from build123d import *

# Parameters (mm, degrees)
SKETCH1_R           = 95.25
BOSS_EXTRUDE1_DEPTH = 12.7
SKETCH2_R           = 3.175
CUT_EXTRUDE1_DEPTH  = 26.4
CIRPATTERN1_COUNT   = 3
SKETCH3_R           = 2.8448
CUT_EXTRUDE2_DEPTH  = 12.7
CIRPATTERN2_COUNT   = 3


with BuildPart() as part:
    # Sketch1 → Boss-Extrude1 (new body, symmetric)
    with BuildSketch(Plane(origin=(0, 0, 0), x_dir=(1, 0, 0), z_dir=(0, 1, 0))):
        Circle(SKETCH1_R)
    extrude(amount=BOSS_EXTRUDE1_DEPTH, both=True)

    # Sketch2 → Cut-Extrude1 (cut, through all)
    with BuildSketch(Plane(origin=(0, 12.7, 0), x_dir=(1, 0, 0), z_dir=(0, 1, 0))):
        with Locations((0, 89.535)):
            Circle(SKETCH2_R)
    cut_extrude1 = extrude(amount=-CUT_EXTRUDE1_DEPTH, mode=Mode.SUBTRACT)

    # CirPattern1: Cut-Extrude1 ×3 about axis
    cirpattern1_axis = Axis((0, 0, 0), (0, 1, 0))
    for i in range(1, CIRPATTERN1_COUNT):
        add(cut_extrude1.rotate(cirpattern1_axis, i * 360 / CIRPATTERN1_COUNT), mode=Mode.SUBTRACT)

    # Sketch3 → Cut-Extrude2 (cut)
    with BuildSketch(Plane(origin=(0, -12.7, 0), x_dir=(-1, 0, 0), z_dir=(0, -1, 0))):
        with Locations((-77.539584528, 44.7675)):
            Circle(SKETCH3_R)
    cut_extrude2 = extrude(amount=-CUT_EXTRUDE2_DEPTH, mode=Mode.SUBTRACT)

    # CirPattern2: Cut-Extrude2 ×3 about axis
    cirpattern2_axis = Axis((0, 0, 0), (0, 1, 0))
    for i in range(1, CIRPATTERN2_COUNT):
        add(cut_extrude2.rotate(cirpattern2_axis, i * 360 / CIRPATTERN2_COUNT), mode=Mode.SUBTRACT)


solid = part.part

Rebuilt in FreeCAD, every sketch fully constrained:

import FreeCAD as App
import Part
import Sketcher

V = App.Vector
Q = App.Units.Quantity

doc = App.newDocument("Part")
body = doc.addObject("PartDesign::Body", "Body")

# Sketch on XZ plane
sketch1 = body.newObject("Sketcher::SketchObject", "Sketch")
sketch1.AttachmentSupport = (doc.getObject("XZ_Plane"), [""])
sketch1.MapMode = "FlatFace"
sketch1.addGeometry(Part.Circle(V(0, 0, 0), V(0, 0, 1), 95), False)
sketch1.addConstraint([
    Sketcher.Constraint("Coincident", 0, 3, -1, 1),
    Sketcher.Constraint("Diameter", 0, Q("7.5 in")),
])
pad1 = body.newObject("PartDesign::Pad", "Pad")
pad1.Profile = sketch1
pad1.Length = Q("1 in")
pad1.Midplane = True

# Sketch on XZ plane
sketch2 = body.newObject("Sketcher::SketchObject", "Sketch001")
sketch2.AttachmentSupport = (doc.getObject("XZ_Plane"), [""])
sketch2.MapMode = "FlatFace"
sketch2.AttachmentOffset = App.Placement(V(0, 0, -0.5 * 25.4), App.Rotation())
sketch2.addGeometry(Part.Circle(V(0, -89.5, 0), V(0, 0, 1), 3.2), False)
sketch2.addConstraint([
    Sketcher.Constraint("PointOnObject", 0, 3, -2),
    Sketcher.Constraint("Diameter", 0, Q("0.25 in")),
    Sketcher.Constraint("DistanceY", 0, 3, -1, 1, Q("3.525 in")),
])
pocket1 = body.newObject("PartDesign::Pocket", "Pocket")
pocket1.Profile = sketch2
pocket1.Type = "ThroughAll"
pocket1.Reversed = True
doc.recompute()

polarpattern = body.newObject("PartDesign::PolarPattern", "PolarPattern")
polarpattern.Originals = [pocket1]
polarpattern.Axis = (doc.getObject("Y_Axis"), [""])
polarpattern.Angle = 360
polarpattern.Occurrences = 3
body.Tip = polarpattern

# Sketch on XZ plane
sketch3 = body.newObject("Sketcher::SketchObject", "Sketch002")
sketch3.AttachmentSupport = (doc.getObject("XZ_Plane"), [""])
sketch3.MapMode = "FlatFace"
sketch3.AttachmentOffset = App.Placement(V(0, 0, 0.5 * 25.4), App.Rotation())
sketch3.addGeometry(Part.Circle(V(77.5, -44.8, 0), V(0, 0, 1), 2.8), False)
sketch3.addConstraint([
    Sketcher.Constraint("Diameter", 0, Q("0.224 in")),
    Sketcher.Constraint("DistanceY", 0, 3, -1, 1, Q("1.7625 in")),
    Sketcher.Constraint("DistanceX", -1, 1, 0, 3, Q("77.539585 mm")),
])
pocket2 = body.newObject("PartDesign::Pocket", "Pocket001")
pocket2.Profile = sketch3
pocket2.Length = Q("0.5 in")
doc.recompute()

polarpattern2 = body.newObject("PartDesign::PolarPattern", "PolarPattern001")
polarpattern2.Originals = [pocket2]
polarpattern2.Axis = (doc.getObject("Y_Axis"), [""])
polarpattern2.Angle = 360
polarpattern2.Occurrences = 3
body.Tip = polarpattern2

doc.recompute()
